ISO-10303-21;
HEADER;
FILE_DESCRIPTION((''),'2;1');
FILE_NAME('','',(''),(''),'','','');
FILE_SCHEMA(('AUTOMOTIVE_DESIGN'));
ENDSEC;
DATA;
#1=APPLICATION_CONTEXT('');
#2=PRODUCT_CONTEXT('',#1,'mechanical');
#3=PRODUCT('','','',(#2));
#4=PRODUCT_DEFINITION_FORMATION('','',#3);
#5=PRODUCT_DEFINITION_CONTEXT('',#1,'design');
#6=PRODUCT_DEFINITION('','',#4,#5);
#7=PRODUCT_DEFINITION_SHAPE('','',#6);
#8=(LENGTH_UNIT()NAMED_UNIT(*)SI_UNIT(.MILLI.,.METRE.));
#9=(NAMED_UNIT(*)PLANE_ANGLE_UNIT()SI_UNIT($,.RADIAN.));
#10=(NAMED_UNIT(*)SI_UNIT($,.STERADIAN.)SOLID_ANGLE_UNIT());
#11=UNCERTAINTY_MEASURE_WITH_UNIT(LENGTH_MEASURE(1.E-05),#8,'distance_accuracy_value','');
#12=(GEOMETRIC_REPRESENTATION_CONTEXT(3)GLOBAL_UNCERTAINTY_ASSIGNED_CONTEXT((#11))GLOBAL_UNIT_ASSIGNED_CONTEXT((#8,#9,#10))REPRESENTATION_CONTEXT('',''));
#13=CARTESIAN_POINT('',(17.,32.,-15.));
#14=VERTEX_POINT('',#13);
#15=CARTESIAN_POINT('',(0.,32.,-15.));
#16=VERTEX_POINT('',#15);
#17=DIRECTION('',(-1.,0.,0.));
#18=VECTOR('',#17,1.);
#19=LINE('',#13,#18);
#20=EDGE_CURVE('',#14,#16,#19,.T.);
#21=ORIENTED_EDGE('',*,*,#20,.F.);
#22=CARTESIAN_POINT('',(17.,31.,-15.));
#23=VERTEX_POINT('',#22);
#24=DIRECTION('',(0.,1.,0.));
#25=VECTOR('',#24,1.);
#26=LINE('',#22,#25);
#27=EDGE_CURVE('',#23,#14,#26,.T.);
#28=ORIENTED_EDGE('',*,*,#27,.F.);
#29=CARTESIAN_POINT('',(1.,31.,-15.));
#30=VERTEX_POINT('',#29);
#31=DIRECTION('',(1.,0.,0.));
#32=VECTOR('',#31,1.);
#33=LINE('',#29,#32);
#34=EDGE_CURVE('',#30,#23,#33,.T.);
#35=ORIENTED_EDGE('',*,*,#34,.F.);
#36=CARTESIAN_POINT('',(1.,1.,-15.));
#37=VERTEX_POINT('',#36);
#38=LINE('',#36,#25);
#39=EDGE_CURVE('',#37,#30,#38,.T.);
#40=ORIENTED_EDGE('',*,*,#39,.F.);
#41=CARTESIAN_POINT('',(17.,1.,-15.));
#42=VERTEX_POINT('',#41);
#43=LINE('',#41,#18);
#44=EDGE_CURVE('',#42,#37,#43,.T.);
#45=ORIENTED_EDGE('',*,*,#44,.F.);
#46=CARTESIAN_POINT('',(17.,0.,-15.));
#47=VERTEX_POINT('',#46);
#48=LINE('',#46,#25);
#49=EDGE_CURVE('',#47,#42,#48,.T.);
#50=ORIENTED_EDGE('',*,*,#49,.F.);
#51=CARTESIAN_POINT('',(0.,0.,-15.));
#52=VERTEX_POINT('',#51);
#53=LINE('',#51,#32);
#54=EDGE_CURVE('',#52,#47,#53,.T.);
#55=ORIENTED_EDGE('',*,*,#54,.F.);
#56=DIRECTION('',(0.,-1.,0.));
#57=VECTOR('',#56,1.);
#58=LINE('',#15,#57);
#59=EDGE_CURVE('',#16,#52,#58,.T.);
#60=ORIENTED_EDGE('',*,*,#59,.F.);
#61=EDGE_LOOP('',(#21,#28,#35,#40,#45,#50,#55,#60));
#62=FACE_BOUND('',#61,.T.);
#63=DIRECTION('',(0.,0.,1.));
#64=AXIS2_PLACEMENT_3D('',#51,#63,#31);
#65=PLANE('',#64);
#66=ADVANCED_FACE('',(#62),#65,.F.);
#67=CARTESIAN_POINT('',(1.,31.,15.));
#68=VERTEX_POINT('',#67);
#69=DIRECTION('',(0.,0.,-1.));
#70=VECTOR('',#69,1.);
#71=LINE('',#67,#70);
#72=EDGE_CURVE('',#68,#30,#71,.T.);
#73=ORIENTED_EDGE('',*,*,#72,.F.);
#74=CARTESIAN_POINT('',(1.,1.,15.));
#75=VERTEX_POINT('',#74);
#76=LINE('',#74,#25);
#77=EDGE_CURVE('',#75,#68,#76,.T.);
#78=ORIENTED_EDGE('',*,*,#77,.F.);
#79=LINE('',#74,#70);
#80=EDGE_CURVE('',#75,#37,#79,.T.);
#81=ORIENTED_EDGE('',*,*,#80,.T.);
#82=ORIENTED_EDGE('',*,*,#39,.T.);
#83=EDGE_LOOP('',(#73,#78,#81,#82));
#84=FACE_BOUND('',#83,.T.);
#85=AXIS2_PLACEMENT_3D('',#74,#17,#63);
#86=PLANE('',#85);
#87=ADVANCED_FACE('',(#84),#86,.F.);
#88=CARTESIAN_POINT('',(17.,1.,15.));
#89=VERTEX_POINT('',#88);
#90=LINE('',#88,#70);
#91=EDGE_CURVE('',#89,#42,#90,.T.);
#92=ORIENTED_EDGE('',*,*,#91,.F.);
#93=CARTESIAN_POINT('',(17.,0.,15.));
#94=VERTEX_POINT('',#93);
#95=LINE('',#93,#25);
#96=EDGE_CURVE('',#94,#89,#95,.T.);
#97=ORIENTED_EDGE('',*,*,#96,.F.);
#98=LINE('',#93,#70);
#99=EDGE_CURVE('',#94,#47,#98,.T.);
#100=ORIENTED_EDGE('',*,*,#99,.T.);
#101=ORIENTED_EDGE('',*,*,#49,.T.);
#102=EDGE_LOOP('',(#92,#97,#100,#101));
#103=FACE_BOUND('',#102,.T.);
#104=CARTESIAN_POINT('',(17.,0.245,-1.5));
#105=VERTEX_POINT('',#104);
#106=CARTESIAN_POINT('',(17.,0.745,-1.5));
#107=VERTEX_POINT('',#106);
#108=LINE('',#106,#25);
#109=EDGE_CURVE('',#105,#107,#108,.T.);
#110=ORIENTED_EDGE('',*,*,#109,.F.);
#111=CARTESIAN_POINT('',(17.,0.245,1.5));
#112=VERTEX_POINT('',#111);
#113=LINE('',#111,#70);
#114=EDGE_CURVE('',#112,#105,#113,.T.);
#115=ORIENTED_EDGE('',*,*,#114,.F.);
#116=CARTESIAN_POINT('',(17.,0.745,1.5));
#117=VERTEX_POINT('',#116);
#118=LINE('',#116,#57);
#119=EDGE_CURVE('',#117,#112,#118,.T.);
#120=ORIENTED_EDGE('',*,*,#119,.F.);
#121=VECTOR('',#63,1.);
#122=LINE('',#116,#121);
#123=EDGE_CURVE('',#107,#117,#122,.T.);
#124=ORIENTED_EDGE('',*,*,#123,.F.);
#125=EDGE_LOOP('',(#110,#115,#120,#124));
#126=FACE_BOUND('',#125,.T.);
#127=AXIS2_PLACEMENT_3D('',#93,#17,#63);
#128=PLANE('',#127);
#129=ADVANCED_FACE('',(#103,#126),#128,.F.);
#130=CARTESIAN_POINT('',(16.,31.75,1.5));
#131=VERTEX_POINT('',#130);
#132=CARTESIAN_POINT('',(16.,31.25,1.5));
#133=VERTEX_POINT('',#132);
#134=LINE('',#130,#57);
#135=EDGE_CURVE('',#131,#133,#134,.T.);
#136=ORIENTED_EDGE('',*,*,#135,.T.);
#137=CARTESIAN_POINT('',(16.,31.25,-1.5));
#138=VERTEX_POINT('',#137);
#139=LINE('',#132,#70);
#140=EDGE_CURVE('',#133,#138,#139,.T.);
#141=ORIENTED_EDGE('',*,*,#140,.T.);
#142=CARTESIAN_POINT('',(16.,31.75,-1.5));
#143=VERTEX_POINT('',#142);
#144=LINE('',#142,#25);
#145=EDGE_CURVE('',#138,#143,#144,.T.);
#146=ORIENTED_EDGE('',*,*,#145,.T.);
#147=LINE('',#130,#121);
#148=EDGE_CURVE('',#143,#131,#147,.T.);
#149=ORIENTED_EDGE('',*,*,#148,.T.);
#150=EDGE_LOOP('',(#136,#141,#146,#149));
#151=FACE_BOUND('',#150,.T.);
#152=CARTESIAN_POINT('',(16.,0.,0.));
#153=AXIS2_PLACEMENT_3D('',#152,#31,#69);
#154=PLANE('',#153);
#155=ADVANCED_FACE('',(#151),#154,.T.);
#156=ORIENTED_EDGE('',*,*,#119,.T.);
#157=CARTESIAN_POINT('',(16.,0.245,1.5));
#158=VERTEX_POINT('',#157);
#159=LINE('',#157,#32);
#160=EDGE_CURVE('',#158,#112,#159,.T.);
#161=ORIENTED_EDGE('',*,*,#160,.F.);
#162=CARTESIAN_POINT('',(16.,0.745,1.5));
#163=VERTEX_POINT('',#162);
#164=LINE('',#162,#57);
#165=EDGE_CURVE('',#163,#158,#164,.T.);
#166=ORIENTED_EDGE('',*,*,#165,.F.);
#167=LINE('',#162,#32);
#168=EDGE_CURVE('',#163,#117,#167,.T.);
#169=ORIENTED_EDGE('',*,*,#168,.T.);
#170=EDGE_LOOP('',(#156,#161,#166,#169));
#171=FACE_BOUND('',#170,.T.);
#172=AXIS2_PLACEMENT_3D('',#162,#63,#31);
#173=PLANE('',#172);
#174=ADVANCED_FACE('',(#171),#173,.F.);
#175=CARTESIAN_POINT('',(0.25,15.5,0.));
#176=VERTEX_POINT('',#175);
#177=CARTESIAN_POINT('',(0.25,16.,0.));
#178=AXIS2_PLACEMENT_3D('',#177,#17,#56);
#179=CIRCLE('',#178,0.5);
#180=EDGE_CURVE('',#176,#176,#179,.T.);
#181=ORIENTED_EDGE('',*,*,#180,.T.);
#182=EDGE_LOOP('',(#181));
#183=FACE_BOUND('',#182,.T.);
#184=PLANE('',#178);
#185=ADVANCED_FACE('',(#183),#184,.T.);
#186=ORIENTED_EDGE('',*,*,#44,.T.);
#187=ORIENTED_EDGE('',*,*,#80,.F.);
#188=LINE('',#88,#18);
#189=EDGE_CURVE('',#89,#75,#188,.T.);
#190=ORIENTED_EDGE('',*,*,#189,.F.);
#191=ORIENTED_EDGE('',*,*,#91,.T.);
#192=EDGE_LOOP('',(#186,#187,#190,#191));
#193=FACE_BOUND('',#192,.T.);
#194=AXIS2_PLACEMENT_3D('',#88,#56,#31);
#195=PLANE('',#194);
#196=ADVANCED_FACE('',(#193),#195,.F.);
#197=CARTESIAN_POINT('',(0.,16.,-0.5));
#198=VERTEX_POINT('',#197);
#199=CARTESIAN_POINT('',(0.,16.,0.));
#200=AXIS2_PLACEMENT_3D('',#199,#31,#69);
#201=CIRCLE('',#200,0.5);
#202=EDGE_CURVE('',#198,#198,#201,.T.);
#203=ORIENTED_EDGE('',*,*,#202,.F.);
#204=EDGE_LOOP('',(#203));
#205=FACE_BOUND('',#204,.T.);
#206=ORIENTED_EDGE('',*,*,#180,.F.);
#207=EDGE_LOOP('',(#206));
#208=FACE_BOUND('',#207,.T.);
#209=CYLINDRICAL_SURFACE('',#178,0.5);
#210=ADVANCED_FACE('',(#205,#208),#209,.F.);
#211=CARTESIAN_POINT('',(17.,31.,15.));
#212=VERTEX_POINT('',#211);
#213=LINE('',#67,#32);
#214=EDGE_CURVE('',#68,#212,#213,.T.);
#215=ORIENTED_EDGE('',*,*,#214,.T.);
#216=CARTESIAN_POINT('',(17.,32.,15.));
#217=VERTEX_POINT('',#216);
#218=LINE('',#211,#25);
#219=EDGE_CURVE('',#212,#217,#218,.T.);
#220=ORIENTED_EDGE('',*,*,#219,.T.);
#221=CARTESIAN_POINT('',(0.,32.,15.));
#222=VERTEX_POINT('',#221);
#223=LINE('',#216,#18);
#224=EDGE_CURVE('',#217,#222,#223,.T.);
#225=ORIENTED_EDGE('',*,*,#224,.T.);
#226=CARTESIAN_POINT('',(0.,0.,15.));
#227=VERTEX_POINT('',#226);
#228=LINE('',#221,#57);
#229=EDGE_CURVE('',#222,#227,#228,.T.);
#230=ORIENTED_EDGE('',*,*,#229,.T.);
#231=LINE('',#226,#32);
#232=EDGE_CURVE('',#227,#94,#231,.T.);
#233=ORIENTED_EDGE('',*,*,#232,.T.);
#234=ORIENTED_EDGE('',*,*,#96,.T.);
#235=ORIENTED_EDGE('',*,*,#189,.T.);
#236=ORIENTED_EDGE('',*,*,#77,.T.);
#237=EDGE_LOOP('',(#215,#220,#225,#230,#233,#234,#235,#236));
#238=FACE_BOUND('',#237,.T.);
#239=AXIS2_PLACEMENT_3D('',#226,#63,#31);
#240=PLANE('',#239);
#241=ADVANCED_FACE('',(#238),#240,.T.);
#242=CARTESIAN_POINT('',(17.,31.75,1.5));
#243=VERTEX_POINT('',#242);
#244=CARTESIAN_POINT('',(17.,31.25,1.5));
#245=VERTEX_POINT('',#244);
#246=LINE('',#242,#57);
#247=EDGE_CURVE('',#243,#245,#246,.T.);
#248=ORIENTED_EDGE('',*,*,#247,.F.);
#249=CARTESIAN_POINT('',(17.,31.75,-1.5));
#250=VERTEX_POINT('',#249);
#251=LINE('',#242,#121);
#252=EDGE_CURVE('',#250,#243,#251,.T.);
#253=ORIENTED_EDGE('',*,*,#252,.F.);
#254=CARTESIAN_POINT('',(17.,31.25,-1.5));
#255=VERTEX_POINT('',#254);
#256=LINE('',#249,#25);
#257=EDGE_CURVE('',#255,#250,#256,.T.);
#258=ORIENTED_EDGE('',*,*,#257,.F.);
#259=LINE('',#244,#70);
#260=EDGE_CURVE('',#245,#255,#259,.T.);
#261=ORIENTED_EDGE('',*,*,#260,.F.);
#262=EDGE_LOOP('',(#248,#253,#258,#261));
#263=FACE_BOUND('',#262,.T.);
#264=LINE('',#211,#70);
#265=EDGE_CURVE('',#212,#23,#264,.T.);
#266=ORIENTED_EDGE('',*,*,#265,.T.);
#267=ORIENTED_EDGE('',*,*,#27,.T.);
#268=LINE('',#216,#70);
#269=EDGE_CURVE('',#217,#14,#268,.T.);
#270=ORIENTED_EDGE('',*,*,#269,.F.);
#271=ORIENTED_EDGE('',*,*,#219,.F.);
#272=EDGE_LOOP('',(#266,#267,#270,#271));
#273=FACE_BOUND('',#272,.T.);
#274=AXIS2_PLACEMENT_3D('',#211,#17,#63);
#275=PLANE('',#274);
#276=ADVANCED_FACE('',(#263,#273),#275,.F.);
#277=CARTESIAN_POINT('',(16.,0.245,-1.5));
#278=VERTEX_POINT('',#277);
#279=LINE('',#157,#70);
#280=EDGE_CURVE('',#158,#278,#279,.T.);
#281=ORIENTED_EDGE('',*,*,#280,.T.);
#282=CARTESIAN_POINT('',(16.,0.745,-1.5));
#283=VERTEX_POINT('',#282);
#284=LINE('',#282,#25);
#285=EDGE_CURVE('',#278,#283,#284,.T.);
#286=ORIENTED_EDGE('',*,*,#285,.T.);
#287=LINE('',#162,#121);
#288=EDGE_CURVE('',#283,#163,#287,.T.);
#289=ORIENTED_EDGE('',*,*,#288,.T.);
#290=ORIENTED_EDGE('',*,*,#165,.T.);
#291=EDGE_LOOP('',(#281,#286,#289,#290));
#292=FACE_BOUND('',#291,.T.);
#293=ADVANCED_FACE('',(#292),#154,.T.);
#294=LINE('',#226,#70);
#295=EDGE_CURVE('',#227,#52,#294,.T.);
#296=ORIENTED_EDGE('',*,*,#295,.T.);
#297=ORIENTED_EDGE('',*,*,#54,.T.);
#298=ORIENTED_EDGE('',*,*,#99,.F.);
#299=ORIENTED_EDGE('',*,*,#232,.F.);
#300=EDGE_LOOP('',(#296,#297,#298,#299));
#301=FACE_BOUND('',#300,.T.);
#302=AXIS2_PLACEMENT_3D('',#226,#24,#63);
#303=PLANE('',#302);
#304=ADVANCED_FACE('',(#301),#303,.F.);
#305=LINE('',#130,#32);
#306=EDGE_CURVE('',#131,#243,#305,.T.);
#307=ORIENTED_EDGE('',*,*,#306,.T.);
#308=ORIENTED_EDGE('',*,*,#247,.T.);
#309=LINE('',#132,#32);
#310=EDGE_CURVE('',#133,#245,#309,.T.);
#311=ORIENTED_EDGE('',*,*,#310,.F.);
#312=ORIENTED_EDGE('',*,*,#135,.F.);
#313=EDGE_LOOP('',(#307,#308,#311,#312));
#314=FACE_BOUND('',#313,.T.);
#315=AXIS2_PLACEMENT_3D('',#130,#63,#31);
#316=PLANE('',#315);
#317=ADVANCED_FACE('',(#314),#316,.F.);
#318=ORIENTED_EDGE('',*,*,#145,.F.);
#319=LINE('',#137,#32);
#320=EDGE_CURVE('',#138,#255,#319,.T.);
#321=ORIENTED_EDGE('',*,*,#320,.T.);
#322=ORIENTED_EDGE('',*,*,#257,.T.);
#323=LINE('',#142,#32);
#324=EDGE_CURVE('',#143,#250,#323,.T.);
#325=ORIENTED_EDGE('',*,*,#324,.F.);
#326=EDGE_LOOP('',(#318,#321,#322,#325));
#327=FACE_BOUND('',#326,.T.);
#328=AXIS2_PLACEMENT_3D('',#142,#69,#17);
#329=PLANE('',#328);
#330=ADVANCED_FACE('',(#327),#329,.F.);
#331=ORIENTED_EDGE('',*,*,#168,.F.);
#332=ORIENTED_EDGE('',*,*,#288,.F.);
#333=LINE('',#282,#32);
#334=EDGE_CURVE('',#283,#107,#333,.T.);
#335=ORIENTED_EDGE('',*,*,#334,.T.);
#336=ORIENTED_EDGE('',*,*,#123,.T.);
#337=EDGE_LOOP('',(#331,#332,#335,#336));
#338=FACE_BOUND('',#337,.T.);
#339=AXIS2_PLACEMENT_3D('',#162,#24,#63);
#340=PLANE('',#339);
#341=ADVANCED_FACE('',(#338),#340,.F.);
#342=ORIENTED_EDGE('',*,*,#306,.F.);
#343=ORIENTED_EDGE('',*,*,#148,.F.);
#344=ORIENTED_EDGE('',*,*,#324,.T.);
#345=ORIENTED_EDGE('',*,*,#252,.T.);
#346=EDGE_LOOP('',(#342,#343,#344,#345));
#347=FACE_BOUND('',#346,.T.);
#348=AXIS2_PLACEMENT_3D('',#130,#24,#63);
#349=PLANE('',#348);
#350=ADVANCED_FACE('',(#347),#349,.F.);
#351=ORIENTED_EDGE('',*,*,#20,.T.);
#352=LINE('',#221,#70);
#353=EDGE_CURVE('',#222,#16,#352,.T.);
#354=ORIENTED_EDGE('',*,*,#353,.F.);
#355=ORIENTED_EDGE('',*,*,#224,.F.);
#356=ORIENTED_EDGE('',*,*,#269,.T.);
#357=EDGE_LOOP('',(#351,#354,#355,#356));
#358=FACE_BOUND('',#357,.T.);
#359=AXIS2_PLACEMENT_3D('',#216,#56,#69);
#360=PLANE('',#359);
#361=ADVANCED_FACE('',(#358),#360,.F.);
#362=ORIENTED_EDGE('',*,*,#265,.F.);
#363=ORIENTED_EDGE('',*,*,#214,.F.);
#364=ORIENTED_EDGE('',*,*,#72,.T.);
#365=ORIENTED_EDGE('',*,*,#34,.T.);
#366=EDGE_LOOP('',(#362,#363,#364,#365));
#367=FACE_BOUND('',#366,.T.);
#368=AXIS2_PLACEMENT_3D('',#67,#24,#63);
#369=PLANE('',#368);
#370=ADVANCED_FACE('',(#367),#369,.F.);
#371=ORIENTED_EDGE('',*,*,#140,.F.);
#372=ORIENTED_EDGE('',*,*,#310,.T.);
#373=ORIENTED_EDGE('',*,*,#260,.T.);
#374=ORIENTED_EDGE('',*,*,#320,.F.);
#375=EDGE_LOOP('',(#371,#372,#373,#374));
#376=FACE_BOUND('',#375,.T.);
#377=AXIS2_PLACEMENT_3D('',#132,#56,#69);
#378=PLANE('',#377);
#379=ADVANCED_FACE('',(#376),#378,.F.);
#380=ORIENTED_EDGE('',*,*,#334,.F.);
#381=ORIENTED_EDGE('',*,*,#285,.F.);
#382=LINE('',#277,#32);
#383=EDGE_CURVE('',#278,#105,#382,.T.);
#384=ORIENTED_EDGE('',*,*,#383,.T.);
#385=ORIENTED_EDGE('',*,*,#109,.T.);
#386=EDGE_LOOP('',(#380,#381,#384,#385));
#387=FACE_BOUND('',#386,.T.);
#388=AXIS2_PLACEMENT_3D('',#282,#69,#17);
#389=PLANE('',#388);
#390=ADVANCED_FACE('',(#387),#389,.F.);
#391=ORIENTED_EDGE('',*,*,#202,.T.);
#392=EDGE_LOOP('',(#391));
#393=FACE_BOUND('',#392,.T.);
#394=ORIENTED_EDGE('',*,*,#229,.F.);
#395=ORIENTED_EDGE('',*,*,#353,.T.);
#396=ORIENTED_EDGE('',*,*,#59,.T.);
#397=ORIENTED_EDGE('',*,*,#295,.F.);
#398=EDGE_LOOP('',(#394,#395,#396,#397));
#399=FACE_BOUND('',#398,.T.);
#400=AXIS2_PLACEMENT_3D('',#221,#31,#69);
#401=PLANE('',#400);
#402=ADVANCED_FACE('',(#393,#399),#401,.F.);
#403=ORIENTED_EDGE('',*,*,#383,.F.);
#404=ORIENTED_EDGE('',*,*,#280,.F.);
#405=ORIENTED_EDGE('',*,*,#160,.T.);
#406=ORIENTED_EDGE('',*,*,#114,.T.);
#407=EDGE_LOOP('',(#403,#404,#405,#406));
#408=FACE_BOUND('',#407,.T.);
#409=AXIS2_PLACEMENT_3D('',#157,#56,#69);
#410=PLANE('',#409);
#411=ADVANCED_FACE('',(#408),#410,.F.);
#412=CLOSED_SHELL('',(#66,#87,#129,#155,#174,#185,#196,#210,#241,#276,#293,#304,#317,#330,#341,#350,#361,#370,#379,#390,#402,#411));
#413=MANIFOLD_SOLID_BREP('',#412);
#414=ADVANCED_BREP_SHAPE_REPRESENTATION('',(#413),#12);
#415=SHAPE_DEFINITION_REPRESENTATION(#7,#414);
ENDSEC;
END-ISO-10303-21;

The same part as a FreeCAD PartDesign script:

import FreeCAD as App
import Part
import Sketcher

V = App.Vector
Q = App.Units.Quantity


def add_polygon(sketch, points):
    """Adds a closed chain of lines whose ends are joined by coincident constraints."""
    first, n = sketch.GeometryCount, len(points)
    for a, b in zip(points, points[1:] + points[:1]):
        sketch.addGeometry(Part.LineSegment(App.Vector(*a, 0), App.Vector(*b, 0)), False)
    for i in range(n):
        sketch.addConstraint(Sketcher.Constraint("Coincident", first + i, 2, first + (i + 1) % n, 1))

doc = App.newDocument("Part")
body = doc.addObject("PartDesign::Body", "Body")

sketch1 = body.newObject("Sketcher::SketchObject", "Sketch")
sketch1.AttachmentSupport = (doc.getObject("XY_Plane"), [""])
sketch1.MapMode = "FlatFace"
add_polygon(sketch1, [(0, 0), (17, 0), (17, 1), (1, 1), (1, 31), (17, 31), (17, 32), (0, 32)])
sketch1.addConstraint([
    Sketcher.Constraint("Horizontal", 0),
    Sketcher.Constraint("Vertical", 1),
    Sketcher.Constraint("Horizontal", 2),
    Sketcher.Constraint("Vertical", 3),
    Sketcher.Constraint("Horizontal", 4),
    Sketcher.Constraint("Vertical", 5),
    Sketcher.Constraint("Horizontal", 6),
    Sketcher.Constraint("Vertical", 7),
    Sketcher.Constraint("Coincident", 7, 2, -1, 1),
    Sketcher.Constraint("Vertical", 1, 2, 4, 2),
    Sketcher.Constraint("Equal", 1, 5),
    Sketcher.Constraint("DistanceX", 0, 1, 0, 2, Q("17 mm")),
    Sketcher.Constraint("DistanceX", 2, 2, 2, 1, Q("16 mm")),
    Sketcher.Constraint("DistanceY", 1, 1, 1, 2, Q("1 mm")),
    Sketcher.Constraint("DistanceY", 3, 1, 3, 2, Q("30 mm")),
])
pad1 = body.newObject("PartDesign::Pad", "Pad")
pad1.Profile = sketch1
pad1.Length = 30
pad1.Midplane = True

sketch2 = body.newObject("Sketcher::SketchObject", "Sketch001")
sketch2.AttachmentSupport = (doc.getObject("YZ_Plane"), [""])
sketch2.MapMode = "FlatFace"
sketch2.AttachmentOffset = App.Placement(V(0, 0, 17), App.Rotation())
add_polygon(sketch2, [(0.745, 1.5), (0.245, 1.5), (0.245, -1.5), (0.745, -1.5)])
sketch2.addConstraint([
    Sketcher.Constraint("Horizontal", 0),
    Sketcher.Constraint("Vertical", 1),
    Sketcher.Constraint("Horizontal", 2),
    Sketcher.Constraint("Vertical", 3),
    Sketcher.Constraint("DistanceY", 1, 2, 1, 1, Q("3 mm")),
    Sketcher.Constraint("DistanceX", 0, 2, 0, 1, Q("0.5 mm")),
    Sketcher.Constraint("DistanceY", -1, 1, 0, 2, Q("1.5 mm")),
    Sketcher.Constraint("DistanceX", -1, 1, 0, 2, Q("0.245 mm")),
])
pocket1 = body.newObject("PartDesign::Pocket", "Pocket")
pocket1.Profile = sketch2
pocket1.Length = 1

sketch3 = body.newObject("Sketcher::SketchObject", "Sketch002")
sketch3.AttachmentSupport = (doc.getObject("YZ_Plane"), [""])
sketch3.MapMode = "FlatFace"
sketch3.AttachmentOffset = App.Placement(V(0, 0, 17), App.Rotation())
add_polygon(sketch3, [(31.75, 1.5), (31.25, 1.5), (31.25, -1.5), (31.75, -1.5)])
sketch3.addConstraint([
    Sketcher.Constraint("Horizontal", 0),
    Sketcher.Constraint("Vertical", 1),
    Sketcher.Constraint("Horizontal", 2),
    Sketcher.Constraint("Vertical", 3),
    Sketcher.Constraint("DistanceY", 1, 2, 1, 1, Q("3 mm")),
    Sketcher.Constraint("DistanceX", 0, 2, 0, 1, Q("0.5 mm")),
    Sketcher.Constraint("DistanceY", -1, 1, 0, 2, Q("1.5 mm")),
    Sketcher.Constraint("DistanceX", -1, 1, 0, 2, Q("31.25 mm")),
])
pocket2 = body.newObject("PartDesign::Pocket", "Pocket001")
pocket2.Profile = sketch3
pocket2.Length = 1

sketch4 = body.newObject("Sketcher::SketchObject", "Sketch003")
sketch4.AttachmentSupport = (doc.getObject("YZ_Plane"), [""])
sketch4.MapMode = "FlatFace"
sketch4.addGeometry(Part.Circle(V(16, 0, 0), V(0, 0, 1), 0.5), False)
sketch4.addConstraint([
    Sketcher.Constraint("PointOnObject", 0, 3, -1),
    Sketcher.Constraint("Diameter", 0, Q("1 mm")),
    Sketcher.Constraint("DistanceX", -1, 1, 0, 3, Q("16 mm")),
])
pocket3 = body.newObject("PartDesign::Pocket", "Pocket002")
pocket3.Profile = sketch4
pocket3.Length = 0.5
pocket3.Midplane = True

doc.recompute()
